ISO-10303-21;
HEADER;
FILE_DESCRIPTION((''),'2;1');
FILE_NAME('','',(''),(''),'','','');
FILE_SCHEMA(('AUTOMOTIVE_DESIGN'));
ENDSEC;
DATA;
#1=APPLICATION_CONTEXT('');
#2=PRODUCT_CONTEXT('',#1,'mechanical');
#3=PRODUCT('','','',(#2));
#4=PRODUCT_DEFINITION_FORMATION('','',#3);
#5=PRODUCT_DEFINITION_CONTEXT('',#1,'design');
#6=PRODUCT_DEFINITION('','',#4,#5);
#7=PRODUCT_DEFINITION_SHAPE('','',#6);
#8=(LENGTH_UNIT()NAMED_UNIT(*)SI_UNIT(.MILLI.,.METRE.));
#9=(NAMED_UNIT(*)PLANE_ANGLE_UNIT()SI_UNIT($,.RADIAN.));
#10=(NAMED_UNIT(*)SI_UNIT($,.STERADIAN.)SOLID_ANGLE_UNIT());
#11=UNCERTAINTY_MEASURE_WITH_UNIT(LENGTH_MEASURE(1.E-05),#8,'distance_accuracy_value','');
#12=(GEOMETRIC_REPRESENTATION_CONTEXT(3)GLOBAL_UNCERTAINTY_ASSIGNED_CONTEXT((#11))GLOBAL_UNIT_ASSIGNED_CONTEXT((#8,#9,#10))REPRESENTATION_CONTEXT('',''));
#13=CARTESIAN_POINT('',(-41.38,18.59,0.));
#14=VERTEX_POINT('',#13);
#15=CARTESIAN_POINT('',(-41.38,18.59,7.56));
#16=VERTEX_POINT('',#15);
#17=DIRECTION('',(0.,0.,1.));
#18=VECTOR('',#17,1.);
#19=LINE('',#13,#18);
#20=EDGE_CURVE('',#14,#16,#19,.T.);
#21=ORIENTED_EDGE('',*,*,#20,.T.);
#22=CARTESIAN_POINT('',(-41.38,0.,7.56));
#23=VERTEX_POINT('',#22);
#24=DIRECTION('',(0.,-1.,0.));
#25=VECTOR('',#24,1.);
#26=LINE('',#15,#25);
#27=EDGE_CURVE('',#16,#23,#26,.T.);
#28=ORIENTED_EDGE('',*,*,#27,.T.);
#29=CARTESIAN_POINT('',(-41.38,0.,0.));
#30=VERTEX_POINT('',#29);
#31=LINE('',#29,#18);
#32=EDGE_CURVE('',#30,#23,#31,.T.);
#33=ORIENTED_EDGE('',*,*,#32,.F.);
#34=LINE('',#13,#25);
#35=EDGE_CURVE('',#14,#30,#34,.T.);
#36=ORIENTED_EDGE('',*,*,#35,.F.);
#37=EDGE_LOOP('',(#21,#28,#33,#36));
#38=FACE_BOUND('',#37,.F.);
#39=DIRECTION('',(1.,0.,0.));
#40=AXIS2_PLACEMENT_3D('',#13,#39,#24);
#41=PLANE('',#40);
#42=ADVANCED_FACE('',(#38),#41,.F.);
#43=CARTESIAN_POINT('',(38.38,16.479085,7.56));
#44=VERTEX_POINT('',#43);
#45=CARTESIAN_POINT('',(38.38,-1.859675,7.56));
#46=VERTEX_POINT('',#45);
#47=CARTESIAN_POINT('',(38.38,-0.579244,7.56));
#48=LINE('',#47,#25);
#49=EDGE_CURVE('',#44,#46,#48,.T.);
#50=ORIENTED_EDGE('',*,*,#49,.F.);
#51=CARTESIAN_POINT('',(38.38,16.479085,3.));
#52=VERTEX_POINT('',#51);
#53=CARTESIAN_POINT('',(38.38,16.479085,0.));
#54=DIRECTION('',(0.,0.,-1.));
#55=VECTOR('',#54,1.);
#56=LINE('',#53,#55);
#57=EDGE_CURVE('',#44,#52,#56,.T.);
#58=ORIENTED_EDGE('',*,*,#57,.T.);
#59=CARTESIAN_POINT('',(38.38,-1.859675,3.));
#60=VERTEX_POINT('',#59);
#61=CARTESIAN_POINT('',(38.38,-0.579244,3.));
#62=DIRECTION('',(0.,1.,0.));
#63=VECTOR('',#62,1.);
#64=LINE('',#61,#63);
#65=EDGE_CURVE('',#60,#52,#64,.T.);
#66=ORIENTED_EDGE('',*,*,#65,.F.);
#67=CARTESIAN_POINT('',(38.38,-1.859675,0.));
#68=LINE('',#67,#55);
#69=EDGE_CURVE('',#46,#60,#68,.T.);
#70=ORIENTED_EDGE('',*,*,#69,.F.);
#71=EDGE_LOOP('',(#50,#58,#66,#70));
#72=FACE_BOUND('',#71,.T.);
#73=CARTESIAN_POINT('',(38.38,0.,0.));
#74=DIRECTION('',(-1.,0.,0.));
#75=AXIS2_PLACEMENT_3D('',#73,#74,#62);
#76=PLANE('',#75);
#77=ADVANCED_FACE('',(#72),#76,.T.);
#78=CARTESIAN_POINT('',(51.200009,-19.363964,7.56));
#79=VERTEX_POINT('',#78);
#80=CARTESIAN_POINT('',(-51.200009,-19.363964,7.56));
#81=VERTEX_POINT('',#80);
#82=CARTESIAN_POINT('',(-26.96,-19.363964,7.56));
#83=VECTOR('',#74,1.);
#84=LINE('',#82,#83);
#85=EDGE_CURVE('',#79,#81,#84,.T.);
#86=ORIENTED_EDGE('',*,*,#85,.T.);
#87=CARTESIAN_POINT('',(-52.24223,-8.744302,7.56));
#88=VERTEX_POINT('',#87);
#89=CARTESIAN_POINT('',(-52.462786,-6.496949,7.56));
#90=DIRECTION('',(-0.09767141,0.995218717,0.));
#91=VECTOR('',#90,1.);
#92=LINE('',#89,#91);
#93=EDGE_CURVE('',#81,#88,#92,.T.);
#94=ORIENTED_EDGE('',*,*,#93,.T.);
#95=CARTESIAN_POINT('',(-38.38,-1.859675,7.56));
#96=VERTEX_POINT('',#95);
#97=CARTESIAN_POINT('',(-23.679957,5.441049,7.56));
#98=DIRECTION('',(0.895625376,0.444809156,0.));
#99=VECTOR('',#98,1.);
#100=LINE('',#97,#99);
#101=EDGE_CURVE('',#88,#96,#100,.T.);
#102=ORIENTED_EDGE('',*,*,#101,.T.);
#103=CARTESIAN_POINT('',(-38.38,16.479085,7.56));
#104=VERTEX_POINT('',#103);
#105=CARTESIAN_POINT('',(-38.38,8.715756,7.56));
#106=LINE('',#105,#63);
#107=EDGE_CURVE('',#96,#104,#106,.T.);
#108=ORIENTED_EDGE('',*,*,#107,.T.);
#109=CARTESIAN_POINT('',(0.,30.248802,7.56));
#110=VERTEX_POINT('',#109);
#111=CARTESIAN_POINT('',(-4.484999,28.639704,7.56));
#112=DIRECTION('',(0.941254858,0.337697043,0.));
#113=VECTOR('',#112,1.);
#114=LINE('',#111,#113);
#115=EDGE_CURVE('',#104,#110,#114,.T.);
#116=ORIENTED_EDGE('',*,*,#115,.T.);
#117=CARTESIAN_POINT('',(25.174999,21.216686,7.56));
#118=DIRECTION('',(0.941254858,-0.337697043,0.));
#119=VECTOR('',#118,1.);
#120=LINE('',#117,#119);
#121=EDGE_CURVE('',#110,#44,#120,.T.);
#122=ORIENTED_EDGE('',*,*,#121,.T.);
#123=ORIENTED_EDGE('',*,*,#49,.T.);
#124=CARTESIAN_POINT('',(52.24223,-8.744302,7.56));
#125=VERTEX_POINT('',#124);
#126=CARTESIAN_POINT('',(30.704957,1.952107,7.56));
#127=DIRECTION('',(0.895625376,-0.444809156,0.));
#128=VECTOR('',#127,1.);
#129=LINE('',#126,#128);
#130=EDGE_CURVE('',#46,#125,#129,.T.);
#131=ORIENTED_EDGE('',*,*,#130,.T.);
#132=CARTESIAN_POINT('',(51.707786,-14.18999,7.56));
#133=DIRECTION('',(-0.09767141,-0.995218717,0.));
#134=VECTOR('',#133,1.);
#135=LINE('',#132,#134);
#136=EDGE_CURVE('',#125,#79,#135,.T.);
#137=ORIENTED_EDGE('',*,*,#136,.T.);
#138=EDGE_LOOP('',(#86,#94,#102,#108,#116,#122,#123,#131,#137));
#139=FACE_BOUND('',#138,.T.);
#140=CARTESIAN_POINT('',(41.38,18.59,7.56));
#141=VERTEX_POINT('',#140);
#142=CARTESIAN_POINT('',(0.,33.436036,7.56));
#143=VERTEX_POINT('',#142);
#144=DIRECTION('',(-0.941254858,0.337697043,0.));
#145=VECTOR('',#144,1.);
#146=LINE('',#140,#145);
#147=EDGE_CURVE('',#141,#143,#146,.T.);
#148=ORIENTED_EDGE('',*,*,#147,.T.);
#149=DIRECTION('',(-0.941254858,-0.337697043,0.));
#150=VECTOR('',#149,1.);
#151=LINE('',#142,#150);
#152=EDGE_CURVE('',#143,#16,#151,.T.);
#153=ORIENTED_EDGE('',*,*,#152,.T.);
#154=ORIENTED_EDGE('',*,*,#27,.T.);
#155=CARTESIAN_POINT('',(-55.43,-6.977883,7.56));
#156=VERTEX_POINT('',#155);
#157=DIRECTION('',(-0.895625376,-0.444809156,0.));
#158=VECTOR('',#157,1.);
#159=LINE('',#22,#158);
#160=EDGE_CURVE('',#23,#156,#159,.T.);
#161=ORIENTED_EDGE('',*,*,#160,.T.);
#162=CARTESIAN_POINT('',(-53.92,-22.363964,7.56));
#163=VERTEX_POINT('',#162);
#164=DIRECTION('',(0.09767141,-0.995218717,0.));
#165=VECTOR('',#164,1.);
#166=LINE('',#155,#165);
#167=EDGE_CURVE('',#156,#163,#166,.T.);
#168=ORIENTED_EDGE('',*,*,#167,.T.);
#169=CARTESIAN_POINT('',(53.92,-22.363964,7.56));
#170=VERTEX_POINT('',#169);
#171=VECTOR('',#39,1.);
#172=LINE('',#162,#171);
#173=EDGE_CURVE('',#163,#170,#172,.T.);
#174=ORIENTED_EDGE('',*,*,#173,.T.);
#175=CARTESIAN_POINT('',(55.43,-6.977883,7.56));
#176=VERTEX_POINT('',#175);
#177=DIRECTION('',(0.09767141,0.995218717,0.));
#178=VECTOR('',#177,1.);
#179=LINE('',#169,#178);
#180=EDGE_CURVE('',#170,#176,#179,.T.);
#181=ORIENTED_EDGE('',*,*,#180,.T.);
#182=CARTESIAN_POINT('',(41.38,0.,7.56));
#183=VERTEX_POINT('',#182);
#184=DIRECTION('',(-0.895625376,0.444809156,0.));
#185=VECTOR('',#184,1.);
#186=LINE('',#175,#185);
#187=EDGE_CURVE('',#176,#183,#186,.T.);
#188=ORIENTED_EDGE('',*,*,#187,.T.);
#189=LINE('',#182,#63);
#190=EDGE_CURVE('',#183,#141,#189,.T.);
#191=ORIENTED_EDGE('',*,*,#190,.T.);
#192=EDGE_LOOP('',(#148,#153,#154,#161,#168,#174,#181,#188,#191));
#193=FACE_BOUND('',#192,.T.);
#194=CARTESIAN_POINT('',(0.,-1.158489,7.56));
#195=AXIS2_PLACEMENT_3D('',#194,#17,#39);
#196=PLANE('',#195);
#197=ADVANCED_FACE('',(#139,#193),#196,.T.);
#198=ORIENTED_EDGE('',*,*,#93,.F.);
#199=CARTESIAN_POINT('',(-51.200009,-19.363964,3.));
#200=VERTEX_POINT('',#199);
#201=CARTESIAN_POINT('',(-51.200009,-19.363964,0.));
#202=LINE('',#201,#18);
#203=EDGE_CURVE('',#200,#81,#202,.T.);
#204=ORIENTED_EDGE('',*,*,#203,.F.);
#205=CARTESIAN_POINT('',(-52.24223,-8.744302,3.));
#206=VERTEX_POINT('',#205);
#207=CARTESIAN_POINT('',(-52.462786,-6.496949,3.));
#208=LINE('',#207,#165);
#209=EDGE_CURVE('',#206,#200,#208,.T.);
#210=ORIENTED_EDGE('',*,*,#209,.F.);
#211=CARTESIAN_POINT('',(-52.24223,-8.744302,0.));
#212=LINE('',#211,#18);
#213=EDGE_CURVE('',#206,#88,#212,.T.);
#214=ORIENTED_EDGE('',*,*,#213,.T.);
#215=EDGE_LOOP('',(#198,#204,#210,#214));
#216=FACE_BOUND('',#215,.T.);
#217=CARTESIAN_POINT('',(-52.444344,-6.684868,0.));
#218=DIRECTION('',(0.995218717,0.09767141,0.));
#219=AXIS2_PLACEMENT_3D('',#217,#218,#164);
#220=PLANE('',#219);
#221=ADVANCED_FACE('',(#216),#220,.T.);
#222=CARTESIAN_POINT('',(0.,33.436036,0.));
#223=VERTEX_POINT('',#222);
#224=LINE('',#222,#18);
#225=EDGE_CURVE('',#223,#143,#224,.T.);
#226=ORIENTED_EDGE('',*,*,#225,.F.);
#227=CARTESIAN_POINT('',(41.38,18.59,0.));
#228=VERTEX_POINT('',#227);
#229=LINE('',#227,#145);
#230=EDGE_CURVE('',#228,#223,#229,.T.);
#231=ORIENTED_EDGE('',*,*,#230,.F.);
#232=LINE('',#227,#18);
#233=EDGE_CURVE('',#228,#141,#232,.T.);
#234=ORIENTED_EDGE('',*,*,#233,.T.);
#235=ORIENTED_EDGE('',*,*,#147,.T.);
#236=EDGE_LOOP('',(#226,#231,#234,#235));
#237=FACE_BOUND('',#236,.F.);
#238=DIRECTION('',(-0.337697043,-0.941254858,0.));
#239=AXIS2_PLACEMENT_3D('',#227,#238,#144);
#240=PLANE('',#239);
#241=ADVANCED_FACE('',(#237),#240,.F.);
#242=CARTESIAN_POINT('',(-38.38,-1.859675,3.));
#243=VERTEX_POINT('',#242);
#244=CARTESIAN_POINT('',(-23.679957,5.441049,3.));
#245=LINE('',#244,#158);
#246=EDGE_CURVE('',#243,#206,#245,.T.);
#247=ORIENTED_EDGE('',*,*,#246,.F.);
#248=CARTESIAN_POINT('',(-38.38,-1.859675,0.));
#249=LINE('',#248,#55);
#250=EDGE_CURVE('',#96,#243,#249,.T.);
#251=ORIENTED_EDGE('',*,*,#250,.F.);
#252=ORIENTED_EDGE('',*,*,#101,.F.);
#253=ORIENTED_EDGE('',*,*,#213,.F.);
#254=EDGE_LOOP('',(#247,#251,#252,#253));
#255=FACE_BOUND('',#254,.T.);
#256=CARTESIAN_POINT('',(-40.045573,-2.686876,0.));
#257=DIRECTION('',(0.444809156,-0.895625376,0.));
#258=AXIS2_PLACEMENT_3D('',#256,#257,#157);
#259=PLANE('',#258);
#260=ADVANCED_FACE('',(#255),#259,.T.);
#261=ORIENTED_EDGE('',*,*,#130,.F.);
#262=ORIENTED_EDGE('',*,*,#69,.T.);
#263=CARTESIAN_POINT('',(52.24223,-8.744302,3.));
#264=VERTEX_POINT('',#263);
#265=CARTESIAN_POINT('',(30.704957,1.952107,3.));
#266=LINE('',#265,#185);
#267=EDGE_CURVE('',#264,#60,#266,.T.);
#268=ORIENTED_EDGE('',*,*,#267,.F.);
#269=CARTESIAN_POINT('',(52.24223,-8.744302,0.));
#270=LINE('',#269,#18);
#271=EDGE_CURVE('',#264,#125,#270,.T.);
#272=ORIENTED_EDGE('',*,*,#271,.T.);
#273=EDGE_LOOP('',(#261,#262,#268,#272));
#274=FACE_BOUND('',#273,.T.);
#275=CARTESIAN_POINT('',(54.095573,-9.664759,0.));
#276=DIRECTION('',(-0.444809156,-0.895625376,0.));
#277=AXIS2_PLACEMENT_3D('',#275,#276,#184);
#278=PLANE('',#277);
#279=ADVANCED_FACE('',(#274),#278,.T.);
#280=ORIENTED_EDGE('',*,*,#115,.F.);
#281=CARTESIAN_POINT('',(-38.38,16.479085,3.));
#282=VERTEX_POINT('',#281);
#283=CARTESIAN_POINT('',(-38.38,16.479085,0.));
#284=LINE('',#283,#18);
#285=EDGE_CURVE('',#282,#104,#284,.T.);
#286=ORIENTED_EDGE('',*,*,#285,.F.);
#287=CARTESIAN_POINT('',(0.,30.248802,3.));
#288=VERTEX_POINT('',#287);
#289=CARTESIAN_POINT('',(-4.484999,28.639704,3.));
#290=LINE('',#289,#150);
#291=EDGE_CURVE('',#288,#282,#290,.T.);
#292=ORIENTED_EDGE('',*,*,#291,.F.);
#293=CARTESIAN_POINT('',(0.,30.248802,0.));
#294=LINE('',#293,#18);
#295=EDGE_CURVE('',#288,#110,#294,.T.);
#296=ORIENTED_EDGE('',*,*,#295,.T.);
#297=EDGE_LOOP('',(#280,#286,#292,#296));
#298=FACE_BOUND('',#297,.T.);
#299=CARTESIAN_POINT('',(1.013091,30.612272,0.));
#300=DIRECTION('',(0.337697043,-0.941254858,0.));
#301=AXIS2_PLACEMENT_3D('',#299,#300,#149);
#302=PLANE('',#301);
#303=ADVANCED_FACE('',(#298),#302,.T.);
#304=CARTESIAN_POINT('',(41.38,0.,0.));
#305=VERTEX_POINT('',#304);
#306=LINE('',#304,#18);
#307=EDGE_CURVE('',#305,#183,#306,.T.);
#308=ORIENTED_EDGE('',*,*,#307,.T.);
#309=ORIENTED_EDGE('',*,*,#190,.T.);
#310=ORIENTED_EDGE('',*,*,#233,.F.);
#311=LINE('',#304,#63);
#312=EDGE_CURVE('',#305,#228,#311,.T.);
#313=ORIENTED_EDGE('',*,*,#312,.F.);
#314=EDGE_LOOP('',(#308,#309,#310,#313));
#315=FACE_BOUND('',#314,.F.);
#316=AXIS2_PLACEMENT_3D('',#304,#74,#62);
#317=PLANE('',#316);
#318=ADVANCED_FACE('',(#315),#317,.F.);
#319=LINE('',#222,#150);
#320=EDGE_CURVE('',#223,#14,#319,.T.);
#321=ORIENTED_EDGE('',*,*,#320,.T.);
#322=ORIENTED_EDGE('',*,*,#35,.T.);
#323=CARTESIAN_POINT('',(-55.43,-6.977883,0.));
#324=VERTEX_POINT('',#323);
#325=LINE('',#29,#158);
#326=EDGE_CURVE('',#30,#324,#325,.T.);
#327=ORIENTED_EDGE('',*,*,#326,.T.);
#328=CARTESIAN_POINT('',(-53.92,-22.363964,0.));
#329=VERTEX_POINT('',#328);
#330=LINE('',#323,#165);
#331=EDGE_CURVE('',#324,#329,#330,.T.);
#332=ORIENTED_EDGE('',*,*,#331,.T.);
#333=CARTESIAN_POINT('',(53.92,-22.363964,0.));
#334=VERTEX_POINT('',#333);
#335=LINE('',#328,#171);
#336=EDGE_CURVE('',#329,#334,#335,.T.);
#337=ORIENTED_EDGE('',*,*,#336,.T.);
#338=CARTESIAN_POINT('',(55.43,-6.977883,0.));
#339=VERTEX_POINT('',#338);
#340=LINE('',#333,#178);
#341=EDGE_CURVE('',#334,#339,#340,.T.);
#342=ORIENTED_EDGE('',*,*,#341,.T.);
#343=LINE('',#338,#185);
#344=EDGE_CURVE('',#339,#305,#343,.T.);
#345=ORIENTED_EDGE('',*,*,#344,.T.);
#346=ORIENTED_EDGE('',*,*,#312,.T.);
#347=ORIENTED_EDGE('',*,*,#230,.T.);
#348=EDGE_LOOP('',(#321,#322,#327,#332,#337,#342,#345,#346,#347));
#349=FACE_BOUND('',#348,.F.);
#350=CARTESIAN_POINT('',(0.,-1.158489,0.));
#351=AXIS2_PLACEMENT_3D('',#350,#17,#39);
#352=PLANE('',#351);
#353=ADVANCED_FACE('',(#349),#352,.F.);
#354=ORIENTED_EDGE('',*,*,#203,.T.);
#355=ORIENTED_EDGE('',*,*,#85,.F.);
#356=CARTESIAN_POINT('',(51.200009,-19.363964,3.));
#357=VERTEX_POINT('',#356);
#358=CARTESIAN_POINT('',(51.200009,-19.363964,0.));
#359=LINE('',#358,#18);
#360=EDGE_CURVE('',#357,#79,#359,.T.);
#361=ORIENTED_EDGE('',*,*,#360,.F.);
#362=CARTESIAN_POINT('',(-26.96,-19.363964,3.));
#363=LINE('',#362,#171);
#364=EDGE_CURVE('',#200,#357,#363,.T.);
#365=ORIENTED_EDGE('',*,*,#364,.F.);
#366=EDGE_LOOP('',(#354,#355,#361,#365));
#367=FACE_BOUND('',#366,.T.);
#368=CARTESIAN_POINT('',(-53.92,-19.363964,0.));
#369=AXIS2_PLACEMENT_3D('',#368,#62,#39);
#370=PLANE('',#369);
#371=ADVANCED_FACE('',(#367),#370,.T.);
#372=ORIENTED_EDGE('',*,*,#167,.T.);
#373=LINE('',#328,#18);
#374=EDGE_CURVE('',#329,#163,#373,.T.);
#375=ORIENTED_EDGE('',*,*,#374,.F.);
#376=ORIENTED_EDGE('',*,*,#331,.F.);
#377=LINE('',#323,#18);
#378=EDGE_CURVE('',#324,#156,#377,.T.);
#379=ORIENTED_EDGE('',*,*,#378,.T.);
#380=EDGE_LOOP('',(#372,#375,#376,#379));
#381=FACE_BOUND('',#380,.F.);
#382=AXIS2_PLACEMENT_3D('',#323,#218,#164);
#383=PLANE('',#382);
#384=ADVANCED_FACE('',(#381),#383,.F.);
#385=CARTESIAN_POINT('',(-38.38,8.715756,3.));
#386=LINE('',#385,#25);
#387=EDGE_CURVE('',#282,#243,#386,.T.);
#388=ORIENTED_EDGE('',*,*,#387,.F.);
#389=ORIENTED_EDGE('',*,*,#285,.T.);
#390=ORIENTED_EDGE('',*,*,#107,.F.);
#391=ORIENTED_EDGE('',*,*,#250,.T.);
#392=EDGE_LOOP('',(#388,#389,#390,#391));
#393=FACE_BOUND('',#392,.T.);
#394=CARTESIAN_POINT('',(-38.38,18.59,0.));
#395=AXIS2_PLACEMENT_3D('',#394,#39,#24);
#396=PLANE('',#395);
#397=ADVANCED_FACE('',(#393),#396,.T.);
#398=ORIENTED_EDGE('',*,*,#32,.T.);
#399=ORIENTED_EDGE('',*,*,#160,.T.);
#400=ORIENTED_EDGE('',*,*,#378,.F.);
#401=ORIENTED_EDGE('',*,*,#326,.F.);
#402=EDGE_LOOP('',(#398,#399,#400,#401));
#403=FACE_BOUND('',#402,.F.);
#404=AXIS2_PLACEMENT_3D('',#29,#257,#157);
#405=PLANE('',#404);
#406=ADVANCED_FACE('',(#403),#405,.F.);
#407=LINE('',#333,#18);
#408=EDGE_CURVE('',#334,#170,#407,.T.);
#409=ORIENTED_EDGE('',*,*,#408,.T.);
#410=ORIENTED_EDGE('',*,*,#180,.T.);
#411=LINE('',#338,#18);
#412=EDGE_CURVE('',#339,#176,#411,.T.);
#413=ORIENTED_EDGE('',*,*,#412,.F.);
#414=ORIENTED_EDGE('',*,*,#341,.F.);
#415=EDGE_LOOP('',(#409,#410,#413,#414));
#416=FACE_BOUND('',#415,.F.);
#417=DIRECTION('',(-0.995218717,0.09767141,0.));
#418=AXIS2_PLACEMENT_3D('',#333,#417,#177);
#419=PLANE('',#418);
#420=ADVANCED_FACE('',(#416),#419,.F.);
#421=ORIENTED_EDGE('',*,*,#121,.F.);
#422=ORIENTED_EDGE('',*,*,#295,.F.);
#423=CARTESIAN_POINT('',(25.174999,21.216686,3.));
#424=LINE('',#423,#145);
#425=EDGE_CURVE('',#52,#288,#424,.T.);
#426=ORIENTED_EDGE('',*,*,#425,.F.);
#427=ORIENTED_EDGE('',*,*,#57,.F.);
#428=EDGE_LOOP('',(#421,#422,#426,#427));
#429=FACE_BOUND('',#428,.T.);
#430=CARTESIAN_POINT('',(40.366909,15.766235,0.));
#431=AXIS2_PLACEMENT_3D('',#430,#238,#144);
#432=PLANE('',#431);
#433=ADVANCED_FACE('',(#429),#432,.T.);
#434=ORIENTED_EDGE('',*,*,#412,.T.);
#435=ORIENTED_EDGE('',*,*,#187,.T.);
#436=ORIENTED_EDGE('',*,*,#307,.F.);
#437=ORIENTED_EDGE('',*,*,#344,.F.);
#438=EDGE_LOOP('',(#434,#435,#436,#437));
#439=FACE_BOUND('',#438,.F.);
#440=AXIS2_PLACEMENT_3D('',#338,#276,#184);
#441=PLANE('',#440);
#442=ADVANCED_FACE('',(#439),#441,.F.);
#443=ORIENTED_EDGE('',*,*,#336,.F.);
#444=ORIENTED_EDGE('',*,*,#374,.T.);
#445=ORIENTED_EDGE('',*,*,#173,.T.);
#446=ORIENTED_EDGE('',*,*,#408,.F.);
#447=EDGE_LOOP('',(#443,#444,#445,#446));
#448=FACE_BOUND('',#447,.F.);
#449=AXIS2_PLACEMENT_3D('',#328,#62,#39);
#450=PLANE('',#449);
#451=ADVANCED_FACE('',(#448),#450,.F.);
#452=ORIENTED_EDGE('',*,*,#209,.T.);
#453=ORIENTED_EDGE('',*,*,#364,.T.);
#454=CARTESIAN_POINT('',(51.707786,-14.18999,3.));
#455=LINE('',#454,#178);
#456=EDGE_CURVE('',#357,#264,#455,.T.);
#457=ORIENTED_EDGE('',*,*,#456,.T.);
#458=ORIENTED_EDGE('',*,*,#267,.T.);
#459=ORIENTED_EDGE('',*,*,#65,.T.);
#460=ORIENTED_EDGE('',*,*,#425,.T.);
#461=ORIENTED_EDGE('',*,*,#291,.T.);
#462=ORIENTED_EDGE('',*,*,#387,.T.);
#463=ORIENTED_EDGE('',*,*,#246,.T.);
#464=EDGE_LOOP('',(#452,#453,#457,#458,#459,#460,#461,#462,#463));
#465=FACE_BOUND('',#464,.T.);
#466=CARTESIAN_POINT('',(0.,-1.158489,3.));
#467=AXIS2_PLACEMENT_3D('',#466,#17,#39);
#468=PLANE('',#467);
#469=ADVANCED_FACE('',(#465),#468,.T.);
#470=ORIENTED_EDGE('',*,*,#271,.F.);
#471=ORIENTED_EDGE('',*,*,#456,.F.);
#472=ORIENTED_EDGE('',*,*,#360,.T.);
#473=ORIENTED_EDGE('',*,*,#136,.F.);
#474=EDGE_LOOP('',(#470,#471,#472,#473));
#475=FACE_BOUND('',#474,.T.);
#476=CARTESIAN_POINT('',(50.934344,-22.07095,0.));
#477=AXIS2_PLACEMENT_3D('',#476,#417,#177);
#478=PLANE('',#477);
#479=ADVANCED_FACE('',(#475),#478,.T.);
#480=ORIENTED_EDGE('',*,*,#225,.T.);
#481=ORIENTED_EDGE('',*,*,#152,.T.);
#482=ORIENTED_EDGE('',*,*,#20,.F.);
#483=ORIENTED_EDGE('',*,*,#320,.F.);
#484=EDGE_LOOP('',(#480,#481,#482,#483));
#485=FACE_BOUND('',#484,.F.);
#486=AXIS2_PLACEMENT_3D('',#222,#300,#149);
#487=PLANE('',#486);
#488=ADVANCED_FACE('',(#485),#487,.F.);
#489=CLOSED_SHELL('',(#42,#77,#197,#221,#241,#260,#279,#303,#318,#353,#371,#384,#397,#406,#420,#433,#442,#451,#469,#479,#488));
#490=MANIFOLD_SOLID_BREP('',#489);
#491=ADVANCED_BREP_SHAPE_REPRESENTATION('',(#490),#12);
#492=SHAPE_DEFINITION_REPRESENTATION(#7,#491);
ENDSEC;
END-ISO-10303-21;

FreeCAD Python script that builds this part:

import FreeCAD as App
import Part
import Sketcher


def faces_at(feature, points):
    """Names of the faces that lie closest to the given points."""
    faces = feature.Shape.Faces
    near = lambda p: min(range(len(faces)), key=lambda i: faces[i].distToShape(Part.Vertex(*p))[0])
    return sorted({f"Face{near(p) + 1}" for p in points})

doc = App.newDocument("Part")
body = doc.addObject("PartDesign::Body", "Body")

# Sketch on XY plane
sketch1 = body.newObject("Sketcher::SketchObject", "Sketch")
sketch1.AttachmentSupport = (doc.getObject("XY_Plane"), [""])
sketch1.MapMode = "FlatFace"
sketch1.addGeometry([
    Part.LineSegment(App.Vector(41, 19, 0), App.Vector(0, 33, 0)),  # 0
    Part.LineSegment(App.Vector(0, 33, 0), App.Vector(-41, 19, 0)),  # 1
    Part.LineSegment(App.Vector(-41, 19, 0), App.Vector(-41, 0, 0)),  # 2
    Part.LineSegment(App.Vector(-41, 0, 0), App.Vector(-55, -7, 0)),  # 3
    Part.LineSegment(App.Vector(-55, -7, 0), App.Vector(-54, -22, 0)),  # 4
    Part.LineSegment(App.Vector(-54, -22, 0), App.Vector(54, -22, 0)),  # 5
    Part.LineSegment(App.Vector(54, -22, 0), App.Vector(55, -7, 0)),  # 6
    Part.LineSegment(App.Vector(55, -7, 0), App.Vector(41, 0, 0)),  # 7
    Part.LineSegment(App.Vector(41, 0, 0), App.Vector(41, 19, 0)),  # 8
], False)
sketch1.addConstraint([
    Sketcher.Constraint("Coincident", 0, 2, 1, 1),
    Sketcher.Constraint("Coincident", 1, 2, 2, 1),
    Sketcher.Constraint("Coincident", 2, 2, 3, 1),
    Sketcher.Constraint("Coincident", 3, 2, 4, 1),
    Sketcher.Constraint("Coincident", 4, 2, 5, 1),
    Sketcher.Constraint("Coincident", 5, 2, 6, 1),
    Sketcher.Constraint("Coincident", 6, 2, 7, 1),
    Sketcher.Constraint("Coincident", 7, 2, 8, 1),
    Sketcher.Constraint("Coincident", 8, 2, 0, 1),
    Sketcher.Constraint("Vertical", 2),
    Sketcher.Constraint("Horizontal", 5),
    Sketcher.Constraint("Vertical", 8),
    Sketcher.Constraint("Symmetric", 2, 2, 7, 2, -1, 1),
    Sketcher.Constraint("Symmetric", 3, 2, 6, 2, -2),
    Sketcher.Constraint("PointOnObject", 0, 2, -2),
    Sketcher.Constraint("PointOnObject", 2, 2, -1),
    Sketcher.Constraint("Horizontal", 1, 2, 8, 2),
    Sketcher.Constraint("Equal", 4, 6),
    Sketcher.Constraint("DistanceX", 5, 1, 5, 2, 107.84),
    Sketcher.Constraint("DistanceY", 2, 2, 2, 1, 18.59),
    Sketcher.Constraint("DistanceY", 4, 2, 0, 2, 55.8),
    Sketcher.Constraint("DistanceX", 2, 2, 5, 2, 95.3),
    Sketcher.Constraint("Distance", 4, 15.46),
    Sketcher.Constraint("DistanceX", 3, 2, -1, 1, 55.43),
    Sketcher.Constraint("Distance", 0, 43.962589),
])
pad1 = body.newObject("PartDesign::Pad", "Pad")
pad1.Profile = sketch1
pad1.Length = 7.56
doc.recompute()

thickness = body.newObject("PartDesign::Thickness", "Thickness")
thickness.Base = (pad1, faces_at(pad1, [(0, 5.536, 7.56)]))
thickness.Value = 3
thickness.Reversed = True
thickness.Join = "Intersection"

doc.recompute()
